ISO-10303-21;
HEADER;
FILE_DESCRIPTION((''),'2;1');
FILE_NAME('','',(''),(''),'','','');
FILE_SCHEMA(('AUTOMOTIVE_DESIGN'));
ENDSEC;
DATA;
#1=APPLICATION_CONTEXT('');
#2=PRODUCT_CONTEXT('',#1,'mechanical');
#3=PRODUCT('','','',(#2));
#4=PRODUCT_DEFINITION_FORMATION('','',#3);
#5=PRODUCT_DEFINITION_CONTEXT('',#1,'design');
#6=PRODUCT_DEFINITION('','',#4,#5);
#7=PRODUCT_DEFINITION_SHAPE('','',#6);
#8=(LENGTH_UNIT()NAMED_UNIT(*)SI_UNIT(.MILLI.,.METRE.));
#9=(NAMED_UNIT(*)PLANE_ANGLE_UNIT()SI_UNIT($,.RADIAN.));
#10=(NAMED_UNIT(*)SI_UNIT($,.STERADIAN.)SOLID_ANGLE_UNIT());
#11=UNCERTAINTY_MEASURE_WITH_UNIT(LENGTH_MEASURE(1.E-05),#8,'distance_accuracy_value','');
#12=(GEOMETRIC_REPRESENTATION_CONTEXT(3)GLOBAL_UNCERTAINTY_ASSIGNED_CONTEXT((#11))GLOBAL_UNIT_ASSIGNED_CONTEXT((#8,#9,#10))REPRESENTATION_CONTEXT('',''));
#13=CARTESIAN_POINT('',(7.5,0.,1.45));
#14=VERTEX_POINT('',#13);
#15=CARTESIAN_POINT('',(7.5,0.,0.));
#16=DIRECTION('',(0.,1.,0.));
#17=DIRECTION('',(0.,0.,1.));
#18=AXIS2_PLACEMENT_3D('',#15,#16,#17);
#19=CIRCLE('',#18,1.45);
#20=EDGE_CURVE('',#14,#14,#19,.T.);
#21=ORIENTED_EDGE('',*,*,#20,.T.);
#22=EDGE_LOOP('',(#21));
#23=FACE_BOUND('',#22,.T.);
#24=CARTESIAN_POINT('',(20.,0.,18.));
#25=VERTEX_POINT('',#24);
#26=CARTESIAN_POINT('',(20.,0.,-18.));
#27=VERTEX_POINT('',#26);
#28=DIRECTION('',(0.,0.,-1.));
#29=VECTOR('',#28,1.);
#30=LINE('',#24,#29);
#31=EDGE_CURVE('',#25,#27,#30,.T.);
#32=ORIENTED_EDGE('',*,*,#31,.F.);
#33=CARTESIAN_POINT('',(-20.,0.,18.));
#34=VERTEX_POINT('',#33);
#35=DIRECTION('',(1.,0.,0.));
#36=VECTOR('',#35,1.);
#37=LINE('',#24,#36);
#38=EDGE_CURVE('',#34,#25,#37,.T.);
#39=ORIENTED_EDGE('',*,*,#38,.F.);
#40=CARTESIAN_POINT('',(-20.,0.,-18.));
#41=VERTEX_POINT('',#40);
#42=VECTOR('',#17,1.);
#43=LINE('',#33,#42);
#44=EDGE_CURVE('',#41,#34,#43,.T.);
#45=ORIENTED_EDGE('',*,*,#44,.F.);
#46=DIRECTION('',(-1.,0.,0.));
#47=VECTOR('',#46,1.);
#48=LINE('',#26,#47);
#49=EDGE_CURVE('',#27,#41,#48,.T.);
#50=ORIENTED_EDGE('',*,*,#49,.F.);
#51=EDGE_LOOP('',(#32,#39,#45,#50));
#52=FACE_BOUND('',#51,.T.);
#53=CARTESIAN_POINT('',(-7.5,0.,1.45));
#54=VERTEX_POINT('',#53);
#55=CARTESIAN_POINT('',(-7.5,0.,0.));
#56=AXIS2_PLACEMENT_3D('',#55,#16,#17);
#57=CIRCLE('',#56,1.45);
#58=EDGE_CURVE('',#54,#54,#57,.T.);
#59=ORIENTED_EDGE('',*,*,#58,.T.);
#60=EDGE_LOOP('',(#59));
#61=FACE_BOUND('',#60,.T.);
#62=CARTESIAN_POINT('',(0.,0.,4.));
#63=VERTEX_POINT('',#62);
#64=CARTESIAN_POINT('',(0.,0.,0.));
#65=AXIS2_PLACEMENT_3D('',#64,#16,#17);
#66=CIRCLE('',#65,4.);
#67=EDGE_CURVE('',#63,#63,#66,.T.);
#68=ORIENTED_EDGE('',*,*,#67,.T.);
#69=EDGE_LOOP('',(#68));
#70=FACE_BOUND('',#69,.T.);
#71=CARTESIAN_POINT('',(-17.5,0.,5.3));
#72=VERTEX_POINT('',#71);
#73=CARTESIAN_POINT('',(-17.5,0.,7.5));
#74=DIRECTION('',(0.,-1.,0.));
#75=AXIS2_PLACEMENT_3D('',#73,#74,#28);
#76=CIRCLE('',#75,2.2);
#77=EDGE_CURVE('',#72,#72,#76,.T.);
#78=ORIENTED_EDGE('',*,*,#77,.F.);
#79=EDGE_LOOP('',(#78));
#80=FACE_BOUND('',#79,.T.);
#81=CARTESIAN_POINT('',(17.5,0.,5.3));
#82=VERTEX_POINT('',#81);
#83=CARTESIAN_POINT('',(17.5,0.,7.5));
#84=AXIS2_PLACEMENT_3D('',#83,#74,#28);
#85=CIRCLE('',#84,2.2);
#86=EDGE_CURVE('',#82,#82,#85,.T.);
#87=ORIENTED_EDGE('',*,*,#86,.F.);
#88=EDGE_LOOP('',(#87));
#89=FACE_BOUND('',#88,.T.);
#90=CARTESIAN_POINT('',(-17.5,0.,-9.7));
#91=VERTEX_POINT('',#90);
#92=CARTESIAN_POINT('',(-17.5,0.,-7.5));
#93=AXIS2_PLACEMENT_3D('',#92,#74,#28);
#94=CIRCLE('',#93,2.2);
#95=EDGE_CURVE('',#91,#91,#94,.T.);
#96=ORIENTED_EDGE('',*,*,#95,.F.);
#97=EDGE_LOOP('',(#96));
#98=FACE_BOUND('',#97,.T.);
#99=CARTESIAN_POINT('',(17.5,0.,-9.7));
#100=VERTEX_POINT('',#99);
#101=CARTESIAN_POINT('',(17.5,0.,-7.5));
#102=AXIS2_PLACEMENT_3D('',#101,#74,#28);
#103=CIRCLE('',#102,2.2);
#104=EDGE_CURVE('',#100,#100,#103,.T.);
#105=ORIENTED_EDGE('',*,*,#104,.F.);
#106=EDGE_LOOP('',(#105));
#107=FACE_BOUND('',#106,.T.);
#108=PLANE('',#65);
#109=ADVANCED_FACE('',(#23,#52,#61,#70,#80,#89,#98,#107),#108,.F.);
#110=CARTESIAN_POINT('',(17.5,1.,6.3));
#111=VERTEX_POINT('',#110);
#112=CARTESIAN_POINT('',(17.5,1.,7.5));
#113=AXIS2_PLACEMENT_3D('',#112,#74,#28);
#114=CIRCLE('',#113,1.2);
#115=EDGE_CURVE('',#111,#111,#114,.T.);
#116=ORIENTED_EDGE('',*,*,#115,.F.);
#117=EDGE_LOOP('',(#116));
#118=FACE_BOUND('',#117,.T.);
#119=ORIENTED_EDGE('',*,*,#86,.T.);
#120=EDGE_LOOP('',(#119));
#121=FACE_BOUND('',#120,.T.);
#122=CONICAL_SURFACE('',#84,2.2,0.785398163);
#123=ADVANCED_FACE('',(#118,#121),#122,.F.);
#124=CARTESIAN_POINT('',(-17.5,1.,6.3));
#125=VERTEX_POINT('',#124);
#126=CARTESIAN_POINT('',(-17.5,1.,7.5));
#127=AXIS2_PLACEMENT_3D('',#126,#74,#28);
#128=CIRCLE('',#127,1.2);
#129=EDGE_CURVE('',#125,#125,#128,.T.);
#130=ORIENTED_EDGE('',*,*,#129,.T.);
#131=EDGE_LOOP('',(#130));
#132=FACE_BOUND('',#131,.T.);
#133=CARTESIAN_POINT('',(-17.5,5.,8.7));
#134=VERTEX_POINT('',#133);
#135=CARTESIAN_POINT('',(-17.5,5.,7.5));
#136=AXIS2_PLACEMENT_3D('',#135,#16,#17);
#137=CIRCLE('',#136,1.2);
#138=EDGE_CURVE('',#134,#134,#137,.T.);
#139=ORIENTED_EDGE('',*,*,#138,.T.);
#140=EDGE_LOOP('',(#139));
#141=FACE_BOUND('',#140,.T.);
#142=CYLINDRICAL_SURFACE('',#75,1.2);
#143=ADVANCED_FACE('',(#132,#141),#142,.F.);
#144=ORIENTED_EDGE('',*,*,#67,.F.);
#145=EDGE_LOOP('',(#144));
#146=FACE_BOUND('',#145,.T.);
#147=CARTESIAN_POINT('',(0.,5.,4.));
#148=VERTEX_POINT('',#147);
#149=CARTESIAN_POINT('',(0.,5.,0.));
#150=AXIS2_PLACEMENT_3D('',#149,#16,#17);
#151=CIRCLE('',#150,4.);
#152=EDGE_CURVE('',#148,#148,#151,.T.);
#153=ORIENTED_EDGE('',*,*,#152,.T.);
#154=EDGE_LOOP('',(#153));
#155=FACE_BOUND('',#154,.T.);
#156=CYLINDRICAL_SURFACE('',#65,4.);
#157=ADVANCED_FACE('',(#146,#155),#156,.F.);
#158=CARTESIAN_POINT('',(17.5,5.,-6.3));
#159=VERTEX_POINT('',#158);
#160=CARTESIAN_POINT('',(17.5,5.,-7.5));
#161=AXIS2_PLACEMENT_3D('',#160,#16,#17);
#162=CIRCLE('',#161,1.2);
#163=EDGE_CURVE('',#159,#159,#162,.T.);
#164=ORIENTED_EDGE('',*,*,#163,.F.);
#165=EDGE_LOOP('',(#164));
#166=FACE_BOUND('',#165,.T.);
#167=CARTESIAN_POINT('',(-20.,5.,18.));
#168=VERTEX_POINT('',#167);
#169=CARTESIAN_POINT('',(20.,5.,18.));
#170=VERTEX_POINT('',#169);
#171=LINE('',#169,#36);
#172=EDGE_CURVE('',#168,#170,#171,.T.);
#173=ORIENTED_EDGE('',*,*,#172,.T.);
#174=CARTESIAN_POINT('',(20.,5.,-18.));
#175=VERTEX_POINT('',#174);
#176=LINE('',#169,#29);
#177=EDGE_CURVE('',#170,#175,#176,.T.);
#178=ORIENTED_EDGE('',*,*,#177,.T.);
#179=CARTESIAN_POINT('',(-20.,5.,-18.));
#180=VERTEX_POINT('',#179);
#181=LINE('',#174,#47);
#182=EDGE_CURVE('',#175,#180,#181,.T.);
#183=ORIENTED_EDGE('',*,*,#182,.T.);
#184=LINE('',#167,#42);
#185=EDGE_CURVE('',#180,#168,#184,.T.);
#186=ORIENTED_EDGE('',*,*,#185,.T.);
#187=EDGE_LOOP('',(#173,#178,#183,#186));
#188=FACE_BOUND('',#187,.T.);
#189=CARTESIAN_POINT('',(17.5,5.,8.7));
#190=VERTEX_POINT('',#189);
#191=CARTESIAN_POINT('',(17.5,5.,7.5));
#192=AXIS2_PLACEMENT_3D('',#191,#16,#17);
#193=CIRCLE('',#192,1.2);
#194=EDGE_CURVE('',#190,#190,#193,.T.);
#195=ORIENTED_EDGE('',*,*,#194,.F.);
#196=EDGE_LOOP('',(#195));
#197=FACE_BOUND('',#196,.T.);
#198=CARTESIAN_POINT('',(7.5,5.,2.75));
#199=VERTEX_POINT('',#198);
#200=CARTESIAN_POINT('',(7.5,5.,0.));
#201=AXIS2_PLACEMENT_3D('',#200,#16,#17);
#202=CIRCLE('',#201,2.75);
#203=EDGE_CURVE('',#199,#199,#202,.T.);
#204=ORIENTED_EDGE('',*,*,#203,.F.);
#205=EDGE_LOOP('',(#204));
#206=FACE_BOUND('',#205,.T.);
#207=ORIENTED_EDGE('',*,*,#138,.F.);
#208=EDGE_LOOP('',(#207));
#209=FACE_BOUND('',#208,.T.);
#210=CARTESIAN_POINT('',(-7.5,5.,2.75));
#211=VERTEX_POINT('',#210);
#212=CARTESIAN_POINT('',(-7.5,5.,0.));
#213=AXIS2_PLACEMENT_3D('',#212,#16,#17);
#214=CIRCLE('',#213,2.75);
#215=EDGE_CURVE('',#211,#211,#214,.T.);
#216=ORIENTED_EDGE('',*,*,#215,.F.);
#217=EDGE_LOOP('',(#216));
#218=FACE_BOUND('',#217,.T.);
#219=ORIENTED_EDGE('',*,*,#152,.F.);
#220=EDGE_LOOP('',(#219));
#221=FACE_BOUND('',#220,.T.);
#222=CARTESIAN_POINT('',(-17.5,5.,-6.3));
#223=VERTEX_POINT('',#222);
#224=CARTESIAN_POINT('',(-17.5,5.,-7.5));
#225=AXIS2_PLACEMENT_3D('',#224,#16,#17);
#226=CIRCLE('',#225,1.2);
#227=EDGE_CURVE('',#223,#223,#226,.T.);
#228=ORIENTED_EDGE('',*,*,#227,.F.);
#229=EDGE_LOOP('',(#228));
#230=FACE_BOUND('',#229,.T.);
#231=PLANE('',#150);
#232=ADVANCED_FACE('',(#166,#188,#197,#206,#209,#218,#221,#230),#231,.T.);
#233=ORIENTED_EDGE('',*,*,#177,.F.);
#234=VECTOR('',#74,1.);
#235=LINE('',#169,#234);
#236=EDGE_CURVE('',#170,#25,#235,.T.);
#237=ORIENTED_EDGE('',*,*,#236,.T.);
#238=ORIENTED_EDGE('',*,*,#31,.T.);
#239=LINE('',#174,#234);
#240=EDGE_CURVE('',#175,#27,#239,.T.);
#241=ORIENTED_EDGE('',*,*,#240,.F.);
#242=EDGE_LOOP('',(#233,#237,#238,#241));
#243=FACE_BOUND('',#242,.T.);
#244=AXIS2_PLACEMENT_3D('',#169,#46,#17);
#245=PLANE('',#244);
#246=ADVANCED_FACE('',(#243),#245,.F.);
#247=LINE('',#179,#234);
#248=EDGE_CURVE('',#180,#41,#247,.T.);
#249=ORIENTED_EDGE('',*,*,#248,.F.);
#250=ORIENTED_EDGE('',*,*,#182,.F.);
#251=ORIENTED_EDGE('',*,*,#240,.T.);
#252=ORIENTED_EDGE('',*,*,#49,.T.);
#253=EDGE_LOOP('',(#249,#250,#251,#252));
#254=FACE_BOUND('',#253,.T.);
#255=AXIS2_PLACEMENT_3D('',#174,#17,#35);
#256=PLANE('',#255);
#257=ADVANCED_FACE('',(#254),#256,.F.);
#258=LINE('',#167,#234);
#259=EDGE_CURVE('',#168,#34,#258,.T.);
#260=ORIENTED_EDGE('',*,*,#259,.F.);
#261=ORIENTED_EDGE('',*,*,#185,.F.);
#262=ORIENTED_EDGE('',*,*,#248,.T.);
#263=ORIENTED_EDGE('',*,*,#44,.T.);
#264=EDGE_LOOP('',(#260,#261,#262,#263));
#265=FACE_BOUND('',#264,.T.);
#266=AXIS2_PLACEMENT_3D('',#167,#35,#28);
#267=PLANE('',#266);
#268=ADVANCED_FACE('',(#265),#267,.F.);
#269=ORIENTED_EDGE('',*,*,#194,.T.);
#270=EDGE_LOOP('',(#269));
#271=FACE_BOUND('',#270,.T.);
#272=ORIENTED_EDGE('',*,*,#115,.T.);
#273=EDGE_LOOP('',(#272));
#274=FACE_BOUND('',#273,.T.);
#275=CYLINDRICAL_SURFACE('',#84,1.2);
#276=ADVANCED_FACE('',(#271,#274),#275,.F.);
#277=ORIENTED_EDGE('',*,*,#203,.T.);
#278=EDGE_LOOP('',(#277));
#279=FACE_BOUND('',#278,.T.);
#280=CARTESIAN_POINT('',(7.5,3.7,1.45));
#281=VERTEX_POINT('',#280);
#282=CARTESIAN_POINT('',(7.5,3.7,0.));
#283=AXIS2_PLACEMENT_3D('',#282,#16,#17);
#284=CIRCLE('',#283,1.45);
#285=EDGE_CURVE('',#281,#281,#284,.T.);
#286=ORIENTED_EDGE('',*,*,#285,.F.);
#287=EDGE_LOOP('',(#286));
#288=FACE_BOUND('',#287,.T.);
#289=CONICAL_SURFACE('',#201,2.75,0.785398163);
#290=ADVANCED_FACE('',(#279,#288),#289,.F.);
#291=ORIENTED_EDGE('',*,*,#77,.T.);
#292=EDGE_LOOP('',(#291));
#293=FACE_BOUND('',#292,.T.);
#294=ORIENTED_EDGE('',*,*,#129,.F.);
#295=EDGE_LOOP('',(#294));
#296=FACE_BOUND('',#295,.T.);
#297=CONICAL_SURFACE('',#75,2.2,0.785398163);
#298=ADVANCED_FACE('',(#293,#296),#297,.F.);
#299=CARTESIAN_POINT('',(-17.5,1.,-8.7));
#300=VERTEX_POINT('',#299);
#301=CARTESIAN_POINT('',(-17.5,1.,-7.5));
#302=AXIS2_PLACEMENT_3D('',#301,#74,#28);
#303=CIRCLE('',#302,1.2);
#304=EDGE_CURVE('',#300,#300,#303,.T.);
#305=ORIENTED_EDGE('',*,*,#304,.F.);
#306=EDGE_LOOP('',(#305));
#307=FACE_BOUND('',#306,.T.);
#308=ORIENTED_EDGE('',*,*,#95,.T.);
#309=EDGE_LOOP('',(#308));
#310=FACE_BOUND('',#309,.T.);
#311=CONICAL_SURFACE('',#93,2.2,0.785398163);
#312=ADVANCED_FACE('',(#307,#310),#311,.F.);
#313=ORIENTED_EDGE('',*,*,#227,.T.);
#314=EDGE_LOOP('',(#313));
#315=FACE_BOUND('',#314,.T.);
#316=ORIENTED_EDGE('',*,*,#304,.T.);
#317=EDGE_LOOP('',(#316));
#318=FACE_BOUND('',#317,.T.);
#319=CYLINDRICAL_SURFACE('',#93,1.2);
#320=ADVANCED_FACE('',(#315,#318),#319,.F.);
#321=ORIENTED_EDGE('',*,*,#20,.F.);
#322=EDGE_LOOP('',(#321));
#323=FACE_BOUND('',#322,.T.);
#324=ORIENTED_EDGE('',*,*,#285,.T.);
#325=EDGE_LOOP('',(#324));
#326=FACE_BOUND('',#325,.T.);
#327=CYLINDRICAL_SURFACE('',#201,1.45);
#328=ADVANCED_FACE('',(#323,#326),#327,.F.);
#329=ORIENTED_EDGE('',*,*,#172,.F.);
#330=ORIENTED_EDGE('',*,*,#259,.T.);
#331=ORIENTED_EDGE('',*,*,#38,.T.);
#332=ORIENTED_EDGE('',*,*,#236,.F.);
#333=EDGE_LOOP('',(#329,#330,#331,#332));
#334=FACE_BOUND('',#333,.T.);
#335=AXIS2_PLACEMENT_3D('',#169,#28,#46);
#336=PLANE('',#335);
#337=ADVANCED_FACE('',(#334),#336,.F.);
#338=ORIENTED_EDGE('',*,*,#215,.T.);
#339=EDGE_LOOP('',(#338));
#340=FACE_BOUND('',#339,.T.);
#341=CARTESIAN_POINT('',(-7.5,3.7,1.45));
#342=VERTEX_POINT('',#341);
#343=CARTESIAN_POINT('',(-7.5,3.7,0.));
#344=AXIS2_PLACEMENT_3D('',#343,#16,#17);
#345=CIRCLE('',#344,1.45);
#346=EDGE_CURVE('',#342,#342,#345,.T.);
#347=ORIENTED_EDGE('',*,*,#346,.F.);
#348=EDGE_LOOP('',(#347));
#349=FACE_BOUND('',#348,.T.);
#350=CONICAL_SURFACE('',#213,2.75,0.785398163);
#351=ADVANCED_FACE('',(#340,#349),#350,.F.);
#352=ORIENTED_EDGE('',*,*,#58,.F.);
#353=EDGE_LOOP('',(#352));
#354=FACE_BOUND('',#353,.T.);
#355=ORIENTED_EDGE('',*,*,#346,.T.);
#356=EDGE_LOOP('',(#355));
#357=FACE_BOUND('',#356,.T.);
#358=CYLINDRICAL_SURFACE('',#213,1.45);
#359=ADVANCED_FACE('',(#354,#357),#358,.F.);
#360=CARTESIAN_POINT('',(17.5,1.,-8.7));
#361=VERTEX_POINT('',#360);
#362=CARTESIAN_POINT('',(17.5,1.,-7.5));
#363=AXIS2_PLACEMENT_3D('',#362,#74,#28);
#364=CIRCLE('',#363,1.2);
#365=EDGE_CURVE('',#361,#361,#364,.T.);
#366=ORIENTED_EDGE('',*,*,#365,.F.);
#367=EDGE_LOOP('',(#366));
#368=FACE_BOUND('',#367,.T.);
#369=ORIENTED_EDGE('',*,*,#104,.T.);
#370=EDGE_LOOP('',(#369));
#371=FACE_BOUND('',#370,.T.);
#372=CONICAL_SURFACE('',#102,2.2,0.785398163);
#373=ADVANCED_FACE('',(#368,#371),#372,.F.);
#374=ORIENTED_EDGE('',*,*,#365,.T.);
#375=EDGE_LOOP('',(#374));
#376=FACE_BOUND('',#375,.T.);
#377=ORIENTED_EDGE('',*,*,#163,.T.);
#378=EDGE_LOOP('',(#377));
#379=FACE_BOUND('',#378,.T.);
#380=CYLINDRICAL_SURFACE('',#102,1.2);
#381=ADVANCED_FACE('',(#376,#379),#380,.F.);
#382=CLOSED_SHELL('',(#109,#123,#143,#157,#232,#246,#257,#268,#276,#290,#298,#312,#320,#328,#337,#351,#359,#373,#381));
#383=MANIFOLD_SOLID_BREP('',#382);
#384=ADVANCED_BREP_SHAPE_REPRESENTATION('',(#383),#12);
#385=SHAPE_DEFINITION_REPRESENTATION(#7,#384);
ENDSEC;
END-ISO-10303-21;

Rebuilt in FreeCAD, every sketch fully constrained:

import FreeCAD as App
import Part
import Sketcher
Q = App.Units.Quantity

doc = App.newDocument("Part")
params = doc.addObject("Spreadsheet::Sheet", "Params")
for row, (alias, value) in enumerate([
    ("sketch1_width", "40 mm"),
    ("sketch1_height", "36 mm"),
    ("pad1_length", "5 mm"),
    ("sketch2_diameter", "8 mm"),
    ("sketch3_diameter", "2.9 mm"),
    ("hole_diameter", "2.9 mm"),
    ("hole_csink_diameter", "5.5 mm"),
    ("sketch4_diameter", "2.4 mm"),
    ("hole2_diameter", "2.4 mm"),
    ("hole2_csink_diameter", "4.4 mm"),
], start=1):
    params.set(f"A{row}", alias)
    params.set(f"B{row}", "=" + value)
    params.setAlias(f"B{row}", alias)

body = doc.addObject("PartDesign::Body", "Body")

sketch1 = doc.addObject("Sketcher::SketchObject", "Sketch")
body.addObject(sketch1)
sketch1.AttachmentSupport = (doc.XZ_Plane, [""])
sketch1.MapMode = "FlatFace"
sketch1.addGeometry(Part.LineSegment(App.Vector(-20, -18, 0), App.Vector(-20, 18, 0)), False)
sketch1.addGeometry(Part.LineSegment(App.Vector(-20, 18, 0), App.Vector(20, 18, 0)), False)
sketch1.addGeometry(Part.LineSegment(App.Vector(20, 18, 0), App.Vector(20, -18, 0)), False)
sketch1.addGeometry(Part.LineSegment(App.Vector(20, -18, 0), App.Vector(-20, -18, 0)), False)
sketch1.addConstraint(Sketcher.Constraint("Coincident", 0, 2, 1, 1))
sketch1.addConstraint(Sketcher.Constraint("Coincident", 1, 2, 2, 1))
sketch1.addConstraint(Sketcher.Constraint("Coincident", 2, 2, 3, 1))
sketch1.addConstraint(Sketcher.Constraint("Coincident", 3, 2, 0, 1))
sketch1.addConstraint(Sketcher.Constraint("Vertical", 0))
sketch1.addConstraint(Sketcher.Constraint("Horizontal", 1))
sketch1.addConstraint(Sketcher.Constraint("Vertical", 2))
sketch1.addConstraint(Sketcher.Constraint("Horizontal", 3))
sketch1.addConstraint(Sketcher.Constraint("Symmetric", 0, 2, 2, 2, -1, 1))
sketch1.addConstraint(Sketcher.Constraint("DistanceX", 1, 1, 1, 2, Q("40 mm")))
sketch1.addConstraint(Sketcher.Constraint("DistanceY", 0, 1, 0, 2, Q("36 mm")))
sketch1.setExpression("Constraints[9]", "Params.sketch1_width")
sketch1.setExpression("Constraints[10]", "Params.sketch1_height")
pad1 = doc.addObject("PartDesign::Pad", "Pad")
body.addObject(pad1)
pad1.Profile = sketch1
pad1.setExpression("Length", "Params.pad1_length")
pad1.Reversed = True

sketch2 = doc.addObject("Sketcher::SketchObject", "Sketch001")
body.addObject(sketch2)
sketch2.AttachmentSupport = (doc.XZ_Plane, [""])
sketch2.MapMode = "FlatFace"
sketch2.AttachmentOffset = App.Placement(App.Vector(0, 0, -5), App.Rotation())
sketch2.addGeometry(Part.Circle(App.Vector(0, 0, 0), App.Vector(0, 0, 1), 4), False)
sketch2.addConstraint(Sketcher.Constraint("Coincident", 0, 3, -1, 1))
sketch2.addConstraint(Sketcher.Constraint("Diameter", 0, Q("8 mm")))
sketch2.setExpression("Constraints[1]", "Params.sketch2_diameter")
pocket1 = doc.addObject("PartDesign::Pocket", "Pocket")
body.addObject(pocket1)
pocket1.Profile = sketch2
pocket1.Type = "ThroughAll"
pocket1.Reversed = True

sketch3 = doc.addObject("Sketcher::SketchObject", "Sketch002")
body.addObject(sketch3)
sketch3.AttachmentSupport = (doc.XZ_Plane, [""])
sketch3.MapMode = "FlatFace"
sketch3.AttachmentOffset = App.Placement(App.Vector(0, 0, -5), App.Rotation())
sketch3.addGeometry(Part.Circle(App.Vector(-7.5, 0, 0), App.Vector(0, 0, 1), 1.45), False)
sketch3.addGeometry(Part.Circle(App.Vector(7.5, 0, 0), App.Vector(0, 0, 1), 1.45), False)
sketch3.addConstraint(Sketcher.Constraint("Equal", 0, 1))
sketch3.addConstraint(Sketcher.Constraint("Symmetric", 0, 3, 1, 3, -1, 1))
sketch3.addConstraint(Sketcher.Constraint("PointOnObject", 0, 3, -1))
sketch3.addConstraint(Sketcher.Constraint("Diameter", 0, Q("2.9 mm")))
sketch3.addConstraint(Sketcher.Constraint("DistanceX", 0, 3, 1, 3, Q("15 mm")))
sketch3.setExpression("Constraints[3]", "Params.sketch3_diameter")
doc.recompute()
hole = doc.addObject("PartDesign::Hole", "Hole")
body.addObject(hole)
hole.Profile = sketch3
hole.ThreadType = "None"
hole.setExpression("Diameter", "Params.hole_diameter")
hole.DepthType = "ThroughAll"
hole.HoleCutType = "Countersink"
hole.setExpression("HoleCutDiameter", "Params.hole_csink_diameter")
hole.HoleCutCountersinkAngle = 90
hole.Reversed = True

sketch4 = doc.addObject("Sketcher::SketchObject", "Sketch003")
body.addObject(sketch4)
sketch4.AttachmentSupport = (doc.XZ_Plane, [""])
sketch4.MapMode = "FlatFace"
sketch4.addGeometry(Part.Circle(App.Vector(-17.5, 7.5, 0), App.Vector(0, 0, 1), 1.2), False)
sketch4.addGeometry(Part.Circle(App.Vector(-17.5, -7.5, 0), App.Vector(0, 0, 1), 1.2), False)
sketch4.addGeometry(Part.Circle(App.Vector(17.5, -7.5, 0), App.Vector(0, 0, 1), 1.2), False)
sketch4.addGeometry(Part.Circle(App.Vector(17.5, 7.5, 0), App.Vector(0, 0, 1), 1.2), False)
sketch4.addConstraint(Sketcher.Constraint("Equal", 0, 1))
sketch4.addConstraint(Sketcher.Constraint("Equal", 1, 2))
sketch4.addConstraint(Sketcher.Constraint("Equal", 2, 3))
sketch4.addConstraint(Sketcher.Constraint("Symmetric", 0, 3, 2, 3, -1, 1))
sketch4.addConstraint(Sketcher.Constraint("Symmetric", 1, 3, 3, 3, -1, 1))
sketch4.addConstraint(Sketcher.Constraint("Symmetric", 1, 3, 2, 3, -2))
sketch4.addConstraint(Sketcher.Constraint("Diameter", 0, Q("2.4 mm")))
sketch4.addConstraint(Sketcher.Constraint("DistanceY", 1, 3, 0, 3, Q("15 mm")))
sketch4.addConstraint(Sketcher.Constraint("DistanceX", 1, 3, 2, 3, Q("35 mm")))
sketch4.setExpression("Constraints[6]", "Params.sketch4_diameter")
doc.recompute()
hole2 = doc.addObject("PartDesign::Hole", "Hole001")
body.addObject(hole2)
hole2.Profile = sketch4
hole2.ThreadType = "None"
hole2.setExpression("Diameter", "Params.hole2_diameter")
hole2.DepthType = "ThroughAll"
hole2.HoleCutType = "Countersink"
hole2.setExpression("HoleCutDiameter", "Params.hole2_csink_diameter")
hole2.HoleCutCountersinkAngle = 90

doc.recompute()
